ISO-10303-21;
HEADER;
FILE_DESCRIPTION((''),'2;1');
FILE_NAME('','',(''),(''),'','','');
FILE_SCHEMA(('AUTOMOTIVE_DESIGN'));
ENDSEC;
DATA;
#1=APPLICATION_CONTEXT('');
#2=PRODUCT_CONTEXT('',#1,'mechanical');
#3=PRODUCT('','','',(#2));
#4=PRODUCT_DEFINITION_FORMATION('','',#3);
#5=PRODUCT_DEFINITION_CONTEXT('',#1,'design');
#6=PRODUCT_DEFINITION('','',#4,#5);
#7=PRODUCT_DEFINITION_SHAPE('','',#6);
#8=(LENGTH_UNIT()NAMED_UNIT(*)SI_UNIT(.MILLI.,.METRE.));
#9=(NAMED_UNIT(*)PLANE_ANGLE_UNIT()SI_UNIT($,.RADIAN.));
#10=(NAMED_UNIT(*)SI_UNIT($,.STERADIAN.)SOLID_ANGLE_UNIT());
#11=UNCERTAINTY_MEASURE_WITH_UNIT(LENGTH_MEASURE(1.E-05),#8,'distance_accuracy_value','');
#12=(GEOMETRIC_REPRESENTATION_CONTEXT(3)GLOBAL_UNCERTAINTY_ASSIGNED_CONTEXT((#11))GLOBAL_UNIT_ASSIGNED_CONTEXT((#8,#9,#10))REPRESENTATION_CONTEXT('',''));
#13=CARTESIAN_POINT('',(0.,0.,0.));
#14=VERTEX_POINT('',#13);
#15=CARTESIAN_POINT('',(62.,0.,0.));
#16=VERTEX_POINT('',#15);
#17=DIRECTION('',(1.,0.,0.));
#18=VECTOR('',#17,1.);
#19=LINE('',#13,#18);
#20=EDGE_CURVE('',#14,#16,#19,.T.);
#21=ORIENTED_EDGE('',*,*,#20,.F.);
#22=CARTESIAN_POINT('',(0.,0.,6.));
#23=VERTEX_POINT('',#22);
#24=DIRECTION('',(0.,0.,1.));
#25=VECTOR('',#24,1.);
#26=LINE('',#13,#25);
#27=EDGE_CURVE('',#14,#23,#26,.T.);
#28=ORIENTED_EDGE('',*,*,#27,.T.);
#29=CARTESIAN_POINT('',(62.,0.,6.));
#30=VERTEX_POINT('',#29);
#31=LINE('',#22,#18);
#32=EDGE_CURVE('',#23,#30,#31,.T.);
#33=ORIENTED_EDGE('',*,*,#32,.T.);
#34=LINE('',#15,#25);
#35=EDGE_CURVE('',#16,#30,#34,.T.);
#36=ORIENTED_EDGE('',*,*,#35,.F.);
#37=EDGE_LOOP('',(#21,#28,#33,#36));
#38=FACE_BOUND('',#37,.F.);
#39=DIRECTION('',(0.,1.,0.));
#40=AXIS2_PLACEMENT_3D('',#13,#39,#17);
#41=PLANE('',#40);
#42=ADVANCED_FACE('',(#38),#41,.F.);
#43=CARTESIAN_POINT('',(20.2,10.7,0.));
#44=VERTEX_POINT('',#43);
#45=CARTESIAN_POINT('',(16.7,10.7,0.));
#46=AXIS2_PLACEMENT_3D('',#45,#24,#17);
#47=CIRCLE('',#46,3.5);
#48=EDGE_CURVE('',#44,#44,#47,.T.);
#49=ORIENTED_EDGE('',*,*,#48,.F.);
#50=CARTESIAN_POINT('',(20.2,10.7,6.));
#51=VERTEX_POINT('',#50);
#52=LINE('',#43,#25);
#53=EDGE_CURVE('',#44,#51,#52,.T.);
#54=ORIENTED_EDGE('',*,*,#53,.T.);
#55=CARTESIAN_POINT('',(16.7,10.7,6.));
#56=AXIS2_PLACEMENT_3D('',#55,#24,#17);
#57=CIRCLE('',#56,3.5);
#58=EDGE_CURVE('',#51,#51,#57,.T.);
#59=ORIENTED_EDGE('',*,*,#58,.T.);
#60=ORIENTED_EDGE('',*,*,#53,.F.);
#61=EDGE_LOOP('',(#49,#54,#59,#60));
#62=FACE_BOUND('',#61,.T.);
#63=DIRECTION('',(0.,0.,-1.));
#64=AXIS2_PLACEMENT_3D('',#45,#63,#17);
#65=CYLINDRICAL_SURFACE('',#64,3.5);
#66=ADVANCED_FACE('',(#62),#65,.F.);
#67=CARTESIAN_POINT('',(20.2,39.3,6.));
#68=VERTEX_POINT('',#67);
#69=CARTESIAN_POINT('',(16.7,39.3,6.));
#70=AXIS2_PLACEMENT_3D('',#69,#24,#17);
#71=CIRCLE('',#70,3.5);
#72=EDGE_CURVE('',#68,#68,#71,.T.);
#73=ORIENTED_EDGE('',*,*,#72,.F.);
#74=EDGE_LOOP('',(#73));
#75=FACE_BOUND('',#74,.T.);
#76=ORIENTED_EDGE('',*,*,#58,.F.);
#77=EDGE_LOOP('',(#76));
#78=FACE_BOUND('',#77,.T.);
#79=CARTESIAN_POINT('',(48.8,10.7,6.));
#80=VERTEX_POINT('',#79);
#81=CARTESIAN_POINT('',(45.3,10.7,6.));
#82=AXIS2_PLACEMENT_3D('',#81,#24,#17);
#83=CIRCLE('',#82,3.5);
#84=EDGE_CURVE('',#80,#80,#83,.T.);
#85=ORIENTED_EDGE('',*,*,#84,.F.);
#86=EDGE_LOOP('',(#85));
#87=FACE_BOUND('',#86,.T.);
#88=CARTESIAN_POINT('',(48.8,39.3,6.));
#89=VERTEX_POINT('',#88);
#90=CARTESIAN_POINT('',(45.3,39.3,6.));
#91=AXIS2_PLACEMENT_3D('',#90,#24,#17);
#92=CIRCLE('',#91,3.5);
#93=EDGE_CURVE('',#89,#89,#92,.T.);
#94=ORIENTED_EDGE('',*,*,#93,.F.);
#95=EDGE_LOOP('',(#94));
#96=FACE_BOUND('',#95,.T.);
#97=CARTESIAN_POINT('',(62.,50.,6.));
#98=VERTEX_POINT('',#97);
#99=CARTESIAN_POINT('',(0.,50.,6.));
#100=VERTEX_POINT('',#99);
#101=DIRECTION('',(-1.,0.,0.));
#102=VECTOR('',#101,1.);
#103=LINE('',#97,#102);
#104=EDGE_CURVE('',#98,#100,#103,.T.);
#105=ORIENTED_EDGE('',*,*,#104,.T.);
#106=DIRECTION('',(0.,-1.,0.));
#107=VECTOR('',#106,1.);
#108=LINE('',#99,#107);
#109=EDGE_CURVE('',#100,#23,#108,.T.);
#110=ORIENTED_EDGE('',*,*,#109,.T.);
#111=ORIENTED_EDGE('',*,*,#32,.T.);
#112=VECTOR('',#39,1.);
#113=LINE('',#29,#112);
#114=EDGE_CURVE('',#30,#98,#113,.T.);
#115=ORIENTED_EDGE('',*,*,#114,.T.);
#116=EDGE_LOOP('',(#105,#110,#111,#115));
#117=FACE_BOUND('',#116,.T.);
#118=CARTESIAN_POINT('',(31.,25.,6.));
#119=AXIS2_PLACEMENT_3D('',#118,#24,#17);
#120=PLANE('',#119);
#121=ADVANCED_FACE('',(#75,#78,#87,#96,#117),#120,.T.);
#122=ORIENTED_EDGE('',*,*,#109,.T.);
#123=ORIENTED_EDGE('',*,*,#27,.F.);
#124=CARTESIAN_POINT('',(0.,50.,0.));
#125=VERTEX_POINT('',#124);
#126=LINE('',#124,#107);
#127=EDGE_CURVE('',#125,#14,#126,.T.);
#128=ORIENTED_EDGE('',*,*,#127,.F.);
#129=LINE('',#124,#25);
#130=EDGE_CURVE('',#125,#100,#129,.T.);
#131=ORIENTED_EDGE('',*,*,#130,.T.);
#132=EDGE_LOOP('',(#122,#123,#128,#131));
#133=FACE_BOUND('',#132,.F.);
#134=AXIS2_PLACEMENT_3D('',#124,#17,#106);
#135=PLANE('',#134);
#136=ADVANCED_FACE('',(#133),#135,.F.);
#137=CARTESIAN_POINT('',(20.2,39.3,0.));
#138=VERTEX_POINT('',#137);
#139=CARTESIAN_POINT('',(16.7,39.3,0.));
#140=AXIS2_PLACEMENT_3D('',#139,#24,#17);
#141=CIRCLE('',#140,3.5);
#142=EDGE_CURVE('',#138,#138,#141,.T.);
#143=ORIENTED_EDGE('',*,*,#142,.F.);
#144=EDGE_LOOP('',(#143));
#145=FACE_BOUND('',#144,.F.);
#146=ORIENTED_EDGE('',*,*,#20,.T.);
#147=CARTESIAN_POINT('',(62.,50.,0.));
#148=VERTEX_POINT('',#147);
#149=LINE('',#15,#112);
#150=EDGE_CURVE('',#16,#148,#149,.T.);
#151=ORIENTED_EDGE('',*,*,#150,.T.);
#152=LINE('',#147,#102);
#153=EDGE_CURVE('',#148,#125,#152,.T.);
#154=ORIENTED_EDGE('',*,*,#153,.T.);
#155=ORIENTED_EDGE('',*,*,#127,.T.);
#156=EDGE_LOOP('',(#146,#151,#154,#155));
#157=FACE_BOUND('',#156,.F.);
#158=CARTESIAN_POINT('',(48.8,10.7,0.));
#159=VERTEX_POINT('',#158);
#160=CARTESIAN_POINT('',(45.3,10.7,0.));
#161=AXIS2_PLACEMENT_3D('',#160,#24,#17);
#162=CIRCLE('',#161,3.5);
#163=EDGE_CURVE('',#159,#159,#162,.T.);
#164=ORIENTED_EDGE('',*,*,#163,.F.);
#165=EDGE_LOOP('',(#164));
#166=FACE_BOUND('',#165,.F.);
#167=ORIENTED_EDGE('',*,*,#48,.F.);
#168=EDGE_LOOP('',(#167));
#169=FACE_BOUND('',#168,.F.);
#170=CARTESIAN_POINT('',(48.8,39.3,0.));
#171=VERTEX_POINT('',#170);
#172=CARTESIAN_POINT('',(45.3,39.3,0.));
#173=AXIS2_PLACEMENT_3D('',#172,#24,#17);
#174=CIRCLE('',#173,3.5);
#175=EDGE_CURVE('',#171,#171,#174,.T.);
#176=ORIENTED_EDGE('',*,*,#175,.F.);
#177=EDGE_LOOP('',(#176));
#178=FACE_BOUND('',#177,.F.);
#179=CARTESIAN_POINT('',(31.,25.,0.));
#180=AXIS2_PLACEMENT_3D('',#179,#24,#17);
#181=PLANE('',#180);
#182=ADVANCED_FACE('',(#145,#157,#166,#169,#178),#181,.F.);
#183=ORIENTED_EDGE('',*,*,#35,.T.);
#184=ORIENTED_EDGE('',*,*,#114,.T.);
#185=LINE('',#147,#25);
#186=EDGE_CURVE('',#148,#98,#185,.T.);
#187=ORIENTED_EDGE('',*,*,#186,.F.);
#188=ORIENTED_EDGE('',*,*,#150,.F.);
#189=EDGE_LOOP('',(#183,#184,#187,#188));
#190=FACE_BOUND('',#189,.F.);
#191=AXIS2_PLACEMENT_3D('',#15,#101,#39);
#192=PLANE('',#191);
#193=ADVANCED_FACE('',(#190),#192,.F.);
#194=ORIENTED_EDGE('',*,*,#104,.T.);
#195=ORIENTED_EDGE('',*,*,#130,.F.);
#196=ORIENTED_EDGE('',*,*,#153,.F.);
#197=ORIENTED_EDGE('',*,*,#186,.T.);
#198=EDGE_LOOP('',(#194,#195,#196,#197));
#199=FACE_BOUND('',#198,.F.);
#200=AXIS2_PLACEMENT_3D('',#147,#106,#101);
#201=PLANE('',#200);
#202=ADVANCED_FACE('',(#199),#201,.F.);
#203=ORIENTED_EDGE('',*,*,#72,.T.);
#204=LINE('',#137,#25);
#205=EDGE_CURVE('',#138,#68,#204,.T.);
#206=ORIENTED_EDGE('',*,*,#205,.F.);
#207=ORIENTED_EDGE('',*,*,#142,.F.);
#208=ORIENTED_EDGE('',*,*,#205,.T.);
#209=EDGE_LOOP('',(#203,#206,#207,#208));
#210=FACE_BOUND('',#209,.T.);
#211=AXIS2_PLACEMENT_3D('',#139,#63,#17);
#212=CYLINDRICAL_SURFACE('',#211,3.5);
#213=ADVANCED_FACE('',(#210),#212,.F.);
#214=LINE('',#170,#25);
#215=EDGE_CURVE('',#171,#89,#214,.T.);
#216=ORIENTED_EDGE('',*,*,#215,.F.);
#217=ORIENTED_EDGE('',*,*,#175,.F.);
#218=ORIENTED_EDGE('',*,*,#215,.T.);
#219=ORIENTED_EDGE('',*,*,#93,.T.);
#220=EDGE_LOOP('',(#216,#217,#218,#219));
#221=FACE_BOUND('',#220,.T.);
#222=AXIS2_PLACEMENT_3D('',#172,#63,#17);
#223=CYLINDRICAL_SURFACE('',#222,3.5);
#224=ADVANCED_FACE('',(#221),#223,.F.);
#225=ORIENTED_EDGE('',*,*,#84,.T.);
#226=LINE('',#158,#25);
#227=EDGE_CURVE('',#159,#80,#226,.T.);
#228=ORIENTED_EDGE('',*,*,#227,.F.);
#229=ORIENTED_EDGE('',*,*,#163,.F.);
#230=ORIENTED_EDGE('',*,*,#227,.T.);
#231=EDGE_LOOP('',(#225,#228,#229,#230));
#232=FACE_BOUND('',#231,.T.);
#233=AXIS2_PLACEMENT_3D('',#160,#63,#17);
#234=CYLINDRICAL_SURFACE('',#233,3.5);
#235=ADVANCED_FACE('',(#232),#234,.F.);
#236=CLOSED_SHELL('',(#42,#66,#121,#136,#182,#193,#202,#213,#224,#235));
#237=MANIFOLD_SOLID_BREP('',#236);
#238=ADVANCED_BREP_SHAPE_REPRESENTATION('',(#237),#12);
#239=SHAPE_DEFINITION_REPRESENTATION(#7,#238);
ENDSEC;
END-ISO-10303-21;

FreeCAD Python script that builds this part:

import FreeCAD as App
import Part
import Sketcher
from FreeCAD import Vector

doc = App.newDocument("Part")
body = doc.addObject("PartDesign::Body", "Body")

sketch1 = body.newObject("Sketcher::SketchObject", "Sketch")
sketch1.AttachmentSupport = (doc.getObject("XY_Plane"), [""])
sketch1.MapMode = "FlatFace"
sketch1.addGeometry(Part.LineSegment(Vector(0, 50, 0), Vector(0, 0, 0)), False)
sketch1.addGeometry(Part.LineSegment(Vector(0, 0, 0), Vector(62, 0, 0)), False)
sketch1.addGeometry(Part.LineSegment(Vector(62, 0, 0), Vector(62, 50, 0)), False)
sketch1.addGeometry(Part.LineSegment(Vector(62, 50, 0), Vector(0, 50, 0)), False)
sketch1.addGeometry(Part.Circle(Vector(16.7, 10.7, 0), Vector(0, 0, 1), 3.5), False)
sketch1.addGeometry(Part.Circle(Vector(45.3, 10.7, 0), Vector(0, 0, 1), 3.5), False)
sketch1.addGeometry(Part.Circle(Vector(16.7, 39.3, 0), Vector(0, 0, 1), 3.5), False)
sketch1.addGeometry(Part.Circle(Vector(45.3, 39.3, 0), Vector(0, 0, 1), 3.5), False)
sketch1.addConstraint(Sketcher.Constraint("Coincident", 0, 2, 1, 1))
sketch1.addConstraint(Sketcher.Constraint("Coincident", 1, 2, 2, 1))
sketch1.addConstraint(Sketcher.Constraint("Coincident", 2, 2, 3, 1))
sketch1.addConstraint(Sketcher.Constraint("Coincident", 3, 2, 0, 1))
sketch1.addConstraint(Sketcher.Constraint("Vertical", 0))
sketch1.addConstraint(Sketcher.Constraint("Horizontal", 1))
sketch1.addConstraint(Sketcher.Constraint("Vertical", 2))
sketch1.addConstraint(Sketcher.Constraint("Horizontal", 3))
sketch1.addConstraint(Sketcher.Constraint("Coincident", 0, 2, -1, 1))
sketch1.addConstraint(Sketcher.Constraint("Equal", 4, 5))
sketch1.addConstraint(Sketcher.Constraint("Equal", 5, 6))
sketch1.addConstraint(Sketcher.Constraint("Equal", 6, 7))
sketch1.addConstraint(Sketcher.Constraint("Horizontal", 4, 3, 5, 3))
sketch1.addConstraint(Sketcher.Constraint("Horizontal", 6, 3, 7, 3))
sketch1.addConstraint(Sketcher.Constraint("Vertical", 4, 3, 6, 3))
sketch1.addConstraint(Sketcher.Constraint("Vertical", 5, 3, 7, 3))
sketch1.addConstraint(Sketcher.Constraint("Diameter", 4, 7.0))
sketch1.addConstraint(Sketcher.Constraint("DistanceX", 1, 1, 1, 2, 62.0))
sketch1.addConstraint(Sketcher.Constraint("DistanceY", 0, 2, 0, 1, 50.0))
sketch1.addConstraint(Sketcher.Constraint("DistanceX", -1, 1, 4, 3, 16.7))
sketch1.addConstraint(Sketcher.Constraint("DistanceY", -1, 1, 4, 3, 10.7))
sketch1.addConstraint(Sketcher.Constraint("DistanceX", -1, 1, 5, 3, 45.3))
sketch1.addConstraint(Sketcher.Constraint("DistanceY", -1, 1, 6, 3, 39.3))
pad1 = body.newObject("PartDesign::Pad", "Pad")
pad1.Profile = sketch1
pad1.Length = 6

doc.recompute()
